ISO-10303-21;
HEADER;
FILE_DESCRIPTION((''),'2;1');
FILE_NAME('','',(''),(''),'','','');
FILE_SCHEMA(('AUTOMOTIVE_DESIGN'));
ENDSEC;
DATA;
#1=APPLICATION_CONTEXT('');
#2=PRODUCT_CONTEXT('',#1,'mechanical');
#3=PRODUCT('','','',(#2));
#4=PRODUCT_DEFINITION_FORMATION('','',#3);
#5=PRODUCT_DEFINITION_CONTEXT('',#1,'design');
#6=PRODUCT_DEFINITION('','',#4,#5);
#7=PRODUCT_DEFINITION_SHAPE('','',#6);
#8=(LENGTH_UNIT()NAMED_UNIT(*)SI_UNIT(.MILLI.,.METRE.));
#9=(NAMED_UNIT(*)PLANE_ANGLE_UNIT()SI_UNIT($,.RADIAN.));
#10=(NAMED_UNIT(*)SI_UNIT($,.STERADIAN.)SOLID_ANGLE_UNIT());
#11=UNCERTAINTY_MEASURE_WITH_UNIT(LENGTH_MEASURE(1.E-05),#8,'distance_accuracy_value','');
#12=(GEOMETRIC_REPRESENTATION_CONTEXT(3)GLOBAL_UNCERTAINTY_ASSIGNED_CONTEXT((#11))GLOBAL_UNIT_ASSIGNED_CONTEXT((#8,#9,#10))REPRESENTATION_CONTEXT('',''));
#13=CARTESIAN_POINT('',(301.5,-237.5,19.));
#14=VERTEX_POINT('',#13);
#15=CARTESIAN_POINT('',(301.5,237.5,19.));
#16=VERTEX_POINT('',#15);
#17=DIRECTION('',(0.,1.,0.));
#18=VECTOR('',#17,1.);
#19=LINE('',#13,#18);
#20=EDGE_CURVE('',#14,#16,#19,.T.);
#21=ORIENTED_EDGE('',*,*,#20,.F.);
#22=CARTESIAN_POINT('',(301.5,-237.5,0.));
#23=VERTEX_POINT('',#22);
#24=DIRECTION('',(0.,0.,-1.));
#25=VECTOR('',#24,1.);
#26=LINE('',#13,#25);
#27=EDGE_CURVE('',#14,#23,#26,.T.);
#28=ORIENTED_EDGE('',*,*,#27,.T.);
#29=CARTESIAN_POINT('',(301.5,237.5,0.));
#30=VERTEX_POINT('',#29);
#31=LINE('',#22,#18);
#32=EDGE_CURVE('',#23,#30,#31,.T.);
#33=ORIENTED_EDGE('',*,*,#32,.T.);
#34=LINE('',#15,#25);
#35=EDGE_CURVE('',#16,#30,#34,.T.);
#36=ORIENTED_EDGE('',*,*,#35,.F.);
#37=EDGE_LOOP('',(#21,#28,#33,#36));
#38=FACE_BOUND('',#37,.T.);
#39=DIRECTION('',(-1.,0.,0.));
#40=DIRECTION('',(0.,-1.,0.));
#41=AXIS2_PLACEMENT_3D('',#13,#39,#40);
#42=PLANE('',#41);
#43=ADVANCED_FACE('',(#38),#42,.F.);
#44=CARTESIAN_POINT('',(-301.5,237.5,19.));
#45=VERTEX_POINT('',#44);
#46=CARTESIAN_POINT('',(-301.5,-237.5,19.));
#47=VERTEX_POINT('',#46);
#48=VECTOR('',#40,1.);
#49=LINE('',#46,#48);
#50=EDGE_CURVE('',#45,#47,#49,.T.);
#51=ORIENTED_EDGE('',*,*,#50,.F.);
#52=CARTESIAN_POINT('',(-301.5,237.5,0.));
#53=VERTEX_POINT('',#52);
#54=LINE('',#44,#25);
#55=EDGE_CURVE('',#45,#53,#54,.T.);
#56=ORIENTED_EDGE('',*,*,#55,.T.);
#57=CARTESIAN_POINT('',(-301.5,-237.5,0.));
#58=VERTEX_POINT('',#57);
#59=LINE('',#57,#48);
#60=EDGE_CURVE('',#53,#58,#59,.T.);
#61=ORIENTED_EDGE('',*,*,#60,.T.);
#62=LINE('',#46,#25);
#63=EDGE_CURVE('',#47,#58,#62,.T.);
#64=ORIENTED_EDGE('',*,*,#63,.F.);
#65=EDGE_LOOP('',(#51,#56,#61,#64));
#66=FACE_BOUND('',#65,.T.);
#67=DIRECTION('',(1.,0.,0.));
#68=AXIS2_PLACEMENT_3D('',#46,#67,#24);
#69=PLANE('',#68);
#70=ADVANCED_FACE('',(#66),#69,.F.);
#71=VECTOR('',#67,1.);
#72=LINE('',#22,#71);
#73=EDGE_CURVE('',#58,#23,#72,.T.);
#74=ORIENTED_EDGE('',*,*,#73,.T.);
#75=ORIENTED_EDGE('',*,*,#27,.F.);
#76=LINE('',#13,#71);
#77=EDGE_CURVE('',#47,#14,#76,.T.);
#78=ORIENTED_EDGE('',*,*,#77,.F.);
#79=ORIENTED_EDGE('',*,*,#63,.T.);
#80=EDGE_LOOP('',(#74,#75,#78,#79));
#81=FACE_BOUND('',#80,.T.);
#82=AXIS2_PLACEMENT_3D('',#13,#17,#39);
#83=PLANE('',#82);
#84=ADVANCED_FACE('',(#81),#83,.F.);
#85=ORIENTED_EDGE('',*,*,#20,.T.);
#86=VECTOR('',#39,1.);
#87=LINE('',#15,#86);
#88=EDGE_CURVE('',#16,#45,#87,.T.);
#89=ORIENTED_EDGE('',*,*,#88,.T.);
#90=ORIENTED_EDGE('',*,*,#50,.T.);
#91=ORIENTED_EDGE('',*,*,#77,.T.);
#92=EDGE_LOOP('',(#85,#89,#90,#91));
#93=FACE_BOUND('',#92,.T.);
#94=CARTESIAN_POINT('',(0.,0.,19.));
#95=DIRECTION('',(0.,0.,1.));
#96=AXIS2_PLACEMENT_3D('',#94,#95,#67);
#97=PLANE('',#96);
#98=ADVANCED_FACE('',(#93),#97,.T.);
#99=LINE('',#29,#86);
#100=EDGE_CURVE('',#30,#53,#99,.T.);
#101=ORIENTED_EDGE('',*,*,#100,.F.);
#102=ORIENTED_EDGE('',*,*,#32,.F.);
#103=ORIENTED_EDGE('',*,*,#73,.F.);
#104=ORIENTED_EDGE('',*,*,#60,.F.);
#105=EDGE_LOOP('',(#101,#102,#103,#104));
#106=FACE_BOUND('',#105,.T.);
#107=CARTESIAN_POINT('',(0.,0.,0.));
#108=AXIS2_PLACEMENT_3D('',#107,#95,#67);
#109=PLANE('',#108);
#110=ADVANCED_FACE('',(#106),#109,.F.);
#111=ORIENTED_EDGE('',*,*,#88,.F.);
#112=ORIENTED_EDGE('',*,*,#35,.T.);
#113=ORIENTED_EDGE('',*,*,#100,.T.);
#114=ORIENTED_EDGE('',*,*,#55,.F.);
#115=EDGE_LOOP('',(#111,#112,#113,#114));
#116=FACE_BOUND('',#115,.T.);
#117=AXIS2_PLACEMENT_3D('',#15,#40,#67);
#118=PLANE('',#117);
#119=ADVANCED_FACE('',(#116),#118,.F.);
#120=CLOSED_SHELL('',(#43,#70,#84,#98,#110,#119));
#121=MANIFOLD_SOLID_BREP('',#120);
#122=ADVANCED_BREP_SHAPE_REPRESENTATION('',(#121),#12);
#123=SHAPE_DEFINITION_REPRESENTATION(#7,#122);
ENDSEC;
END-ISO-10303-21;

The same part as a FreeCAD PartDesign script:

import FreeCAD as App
import Part
import Sketcher
from FreeCAD import Vector
Q = App.Units.Quantity


def add_polygon(sketch, points):
    """Adds a closed chain of lines whose ends are joined by coincident constraints."""
    first, n = sketch.GeometryCount, len(points)
    for a, b in zip(points, points[1:] + points[:1]):
        sketch.addGeometry(Part.LineSegment(App.Vector(*a, 0), App.Vector(*b, 0)), False)
    for i in range(n):
        sketch.addConstraint(Sketcher.Constraint("Coincident", first + i, 2, first + (i + 1) % n, 1))

doc = App.newDocument("Part")
body = doc.addObject("PartDesign::Body", "Body")

sketch1 = body.newObject("Sketcher::SketchObject", "Sketch")
sketch1.AttachmentSupport = (doc.getObject("XY_Plane"), [""])
sketch1.MapMode = "FlatFace"
add_polygon(sketch1, [(-301.5, 237.5), (-301.5, -237.5), (301.5, -237.5), (301.5, 237.5)])
sketch1.addConstraint(Sketcher.Constraint("Vertical", 0))
sketch1.addConstraint(Sketcher.Constraint("Horizontal", 1))
sketch1.addConstraint(Sketcher.Constraint("Vertical", 2))
sketch1.addConstraint(Sketcher.Constraint("Horizontal", 3))
sketch1.addConstraint(Sketcher.Constraint("Symmetric", 0, 2, 2, 2, -1, 1))
sketch1.addConstraint(Sketcher.Constraint("DistanceX", 1, 1, 1, 2, Q("603 mm")))
sketch1.addConstraint(Sketcher.Constraint("DistanceY", 0, 2, 0, 1, Q("475 mm")))
pad1 = body.newObject("PartDesign::Pad", "Pad")
pad1.Profile = sketch1
pad1.Length = 19

doc.recompute()
